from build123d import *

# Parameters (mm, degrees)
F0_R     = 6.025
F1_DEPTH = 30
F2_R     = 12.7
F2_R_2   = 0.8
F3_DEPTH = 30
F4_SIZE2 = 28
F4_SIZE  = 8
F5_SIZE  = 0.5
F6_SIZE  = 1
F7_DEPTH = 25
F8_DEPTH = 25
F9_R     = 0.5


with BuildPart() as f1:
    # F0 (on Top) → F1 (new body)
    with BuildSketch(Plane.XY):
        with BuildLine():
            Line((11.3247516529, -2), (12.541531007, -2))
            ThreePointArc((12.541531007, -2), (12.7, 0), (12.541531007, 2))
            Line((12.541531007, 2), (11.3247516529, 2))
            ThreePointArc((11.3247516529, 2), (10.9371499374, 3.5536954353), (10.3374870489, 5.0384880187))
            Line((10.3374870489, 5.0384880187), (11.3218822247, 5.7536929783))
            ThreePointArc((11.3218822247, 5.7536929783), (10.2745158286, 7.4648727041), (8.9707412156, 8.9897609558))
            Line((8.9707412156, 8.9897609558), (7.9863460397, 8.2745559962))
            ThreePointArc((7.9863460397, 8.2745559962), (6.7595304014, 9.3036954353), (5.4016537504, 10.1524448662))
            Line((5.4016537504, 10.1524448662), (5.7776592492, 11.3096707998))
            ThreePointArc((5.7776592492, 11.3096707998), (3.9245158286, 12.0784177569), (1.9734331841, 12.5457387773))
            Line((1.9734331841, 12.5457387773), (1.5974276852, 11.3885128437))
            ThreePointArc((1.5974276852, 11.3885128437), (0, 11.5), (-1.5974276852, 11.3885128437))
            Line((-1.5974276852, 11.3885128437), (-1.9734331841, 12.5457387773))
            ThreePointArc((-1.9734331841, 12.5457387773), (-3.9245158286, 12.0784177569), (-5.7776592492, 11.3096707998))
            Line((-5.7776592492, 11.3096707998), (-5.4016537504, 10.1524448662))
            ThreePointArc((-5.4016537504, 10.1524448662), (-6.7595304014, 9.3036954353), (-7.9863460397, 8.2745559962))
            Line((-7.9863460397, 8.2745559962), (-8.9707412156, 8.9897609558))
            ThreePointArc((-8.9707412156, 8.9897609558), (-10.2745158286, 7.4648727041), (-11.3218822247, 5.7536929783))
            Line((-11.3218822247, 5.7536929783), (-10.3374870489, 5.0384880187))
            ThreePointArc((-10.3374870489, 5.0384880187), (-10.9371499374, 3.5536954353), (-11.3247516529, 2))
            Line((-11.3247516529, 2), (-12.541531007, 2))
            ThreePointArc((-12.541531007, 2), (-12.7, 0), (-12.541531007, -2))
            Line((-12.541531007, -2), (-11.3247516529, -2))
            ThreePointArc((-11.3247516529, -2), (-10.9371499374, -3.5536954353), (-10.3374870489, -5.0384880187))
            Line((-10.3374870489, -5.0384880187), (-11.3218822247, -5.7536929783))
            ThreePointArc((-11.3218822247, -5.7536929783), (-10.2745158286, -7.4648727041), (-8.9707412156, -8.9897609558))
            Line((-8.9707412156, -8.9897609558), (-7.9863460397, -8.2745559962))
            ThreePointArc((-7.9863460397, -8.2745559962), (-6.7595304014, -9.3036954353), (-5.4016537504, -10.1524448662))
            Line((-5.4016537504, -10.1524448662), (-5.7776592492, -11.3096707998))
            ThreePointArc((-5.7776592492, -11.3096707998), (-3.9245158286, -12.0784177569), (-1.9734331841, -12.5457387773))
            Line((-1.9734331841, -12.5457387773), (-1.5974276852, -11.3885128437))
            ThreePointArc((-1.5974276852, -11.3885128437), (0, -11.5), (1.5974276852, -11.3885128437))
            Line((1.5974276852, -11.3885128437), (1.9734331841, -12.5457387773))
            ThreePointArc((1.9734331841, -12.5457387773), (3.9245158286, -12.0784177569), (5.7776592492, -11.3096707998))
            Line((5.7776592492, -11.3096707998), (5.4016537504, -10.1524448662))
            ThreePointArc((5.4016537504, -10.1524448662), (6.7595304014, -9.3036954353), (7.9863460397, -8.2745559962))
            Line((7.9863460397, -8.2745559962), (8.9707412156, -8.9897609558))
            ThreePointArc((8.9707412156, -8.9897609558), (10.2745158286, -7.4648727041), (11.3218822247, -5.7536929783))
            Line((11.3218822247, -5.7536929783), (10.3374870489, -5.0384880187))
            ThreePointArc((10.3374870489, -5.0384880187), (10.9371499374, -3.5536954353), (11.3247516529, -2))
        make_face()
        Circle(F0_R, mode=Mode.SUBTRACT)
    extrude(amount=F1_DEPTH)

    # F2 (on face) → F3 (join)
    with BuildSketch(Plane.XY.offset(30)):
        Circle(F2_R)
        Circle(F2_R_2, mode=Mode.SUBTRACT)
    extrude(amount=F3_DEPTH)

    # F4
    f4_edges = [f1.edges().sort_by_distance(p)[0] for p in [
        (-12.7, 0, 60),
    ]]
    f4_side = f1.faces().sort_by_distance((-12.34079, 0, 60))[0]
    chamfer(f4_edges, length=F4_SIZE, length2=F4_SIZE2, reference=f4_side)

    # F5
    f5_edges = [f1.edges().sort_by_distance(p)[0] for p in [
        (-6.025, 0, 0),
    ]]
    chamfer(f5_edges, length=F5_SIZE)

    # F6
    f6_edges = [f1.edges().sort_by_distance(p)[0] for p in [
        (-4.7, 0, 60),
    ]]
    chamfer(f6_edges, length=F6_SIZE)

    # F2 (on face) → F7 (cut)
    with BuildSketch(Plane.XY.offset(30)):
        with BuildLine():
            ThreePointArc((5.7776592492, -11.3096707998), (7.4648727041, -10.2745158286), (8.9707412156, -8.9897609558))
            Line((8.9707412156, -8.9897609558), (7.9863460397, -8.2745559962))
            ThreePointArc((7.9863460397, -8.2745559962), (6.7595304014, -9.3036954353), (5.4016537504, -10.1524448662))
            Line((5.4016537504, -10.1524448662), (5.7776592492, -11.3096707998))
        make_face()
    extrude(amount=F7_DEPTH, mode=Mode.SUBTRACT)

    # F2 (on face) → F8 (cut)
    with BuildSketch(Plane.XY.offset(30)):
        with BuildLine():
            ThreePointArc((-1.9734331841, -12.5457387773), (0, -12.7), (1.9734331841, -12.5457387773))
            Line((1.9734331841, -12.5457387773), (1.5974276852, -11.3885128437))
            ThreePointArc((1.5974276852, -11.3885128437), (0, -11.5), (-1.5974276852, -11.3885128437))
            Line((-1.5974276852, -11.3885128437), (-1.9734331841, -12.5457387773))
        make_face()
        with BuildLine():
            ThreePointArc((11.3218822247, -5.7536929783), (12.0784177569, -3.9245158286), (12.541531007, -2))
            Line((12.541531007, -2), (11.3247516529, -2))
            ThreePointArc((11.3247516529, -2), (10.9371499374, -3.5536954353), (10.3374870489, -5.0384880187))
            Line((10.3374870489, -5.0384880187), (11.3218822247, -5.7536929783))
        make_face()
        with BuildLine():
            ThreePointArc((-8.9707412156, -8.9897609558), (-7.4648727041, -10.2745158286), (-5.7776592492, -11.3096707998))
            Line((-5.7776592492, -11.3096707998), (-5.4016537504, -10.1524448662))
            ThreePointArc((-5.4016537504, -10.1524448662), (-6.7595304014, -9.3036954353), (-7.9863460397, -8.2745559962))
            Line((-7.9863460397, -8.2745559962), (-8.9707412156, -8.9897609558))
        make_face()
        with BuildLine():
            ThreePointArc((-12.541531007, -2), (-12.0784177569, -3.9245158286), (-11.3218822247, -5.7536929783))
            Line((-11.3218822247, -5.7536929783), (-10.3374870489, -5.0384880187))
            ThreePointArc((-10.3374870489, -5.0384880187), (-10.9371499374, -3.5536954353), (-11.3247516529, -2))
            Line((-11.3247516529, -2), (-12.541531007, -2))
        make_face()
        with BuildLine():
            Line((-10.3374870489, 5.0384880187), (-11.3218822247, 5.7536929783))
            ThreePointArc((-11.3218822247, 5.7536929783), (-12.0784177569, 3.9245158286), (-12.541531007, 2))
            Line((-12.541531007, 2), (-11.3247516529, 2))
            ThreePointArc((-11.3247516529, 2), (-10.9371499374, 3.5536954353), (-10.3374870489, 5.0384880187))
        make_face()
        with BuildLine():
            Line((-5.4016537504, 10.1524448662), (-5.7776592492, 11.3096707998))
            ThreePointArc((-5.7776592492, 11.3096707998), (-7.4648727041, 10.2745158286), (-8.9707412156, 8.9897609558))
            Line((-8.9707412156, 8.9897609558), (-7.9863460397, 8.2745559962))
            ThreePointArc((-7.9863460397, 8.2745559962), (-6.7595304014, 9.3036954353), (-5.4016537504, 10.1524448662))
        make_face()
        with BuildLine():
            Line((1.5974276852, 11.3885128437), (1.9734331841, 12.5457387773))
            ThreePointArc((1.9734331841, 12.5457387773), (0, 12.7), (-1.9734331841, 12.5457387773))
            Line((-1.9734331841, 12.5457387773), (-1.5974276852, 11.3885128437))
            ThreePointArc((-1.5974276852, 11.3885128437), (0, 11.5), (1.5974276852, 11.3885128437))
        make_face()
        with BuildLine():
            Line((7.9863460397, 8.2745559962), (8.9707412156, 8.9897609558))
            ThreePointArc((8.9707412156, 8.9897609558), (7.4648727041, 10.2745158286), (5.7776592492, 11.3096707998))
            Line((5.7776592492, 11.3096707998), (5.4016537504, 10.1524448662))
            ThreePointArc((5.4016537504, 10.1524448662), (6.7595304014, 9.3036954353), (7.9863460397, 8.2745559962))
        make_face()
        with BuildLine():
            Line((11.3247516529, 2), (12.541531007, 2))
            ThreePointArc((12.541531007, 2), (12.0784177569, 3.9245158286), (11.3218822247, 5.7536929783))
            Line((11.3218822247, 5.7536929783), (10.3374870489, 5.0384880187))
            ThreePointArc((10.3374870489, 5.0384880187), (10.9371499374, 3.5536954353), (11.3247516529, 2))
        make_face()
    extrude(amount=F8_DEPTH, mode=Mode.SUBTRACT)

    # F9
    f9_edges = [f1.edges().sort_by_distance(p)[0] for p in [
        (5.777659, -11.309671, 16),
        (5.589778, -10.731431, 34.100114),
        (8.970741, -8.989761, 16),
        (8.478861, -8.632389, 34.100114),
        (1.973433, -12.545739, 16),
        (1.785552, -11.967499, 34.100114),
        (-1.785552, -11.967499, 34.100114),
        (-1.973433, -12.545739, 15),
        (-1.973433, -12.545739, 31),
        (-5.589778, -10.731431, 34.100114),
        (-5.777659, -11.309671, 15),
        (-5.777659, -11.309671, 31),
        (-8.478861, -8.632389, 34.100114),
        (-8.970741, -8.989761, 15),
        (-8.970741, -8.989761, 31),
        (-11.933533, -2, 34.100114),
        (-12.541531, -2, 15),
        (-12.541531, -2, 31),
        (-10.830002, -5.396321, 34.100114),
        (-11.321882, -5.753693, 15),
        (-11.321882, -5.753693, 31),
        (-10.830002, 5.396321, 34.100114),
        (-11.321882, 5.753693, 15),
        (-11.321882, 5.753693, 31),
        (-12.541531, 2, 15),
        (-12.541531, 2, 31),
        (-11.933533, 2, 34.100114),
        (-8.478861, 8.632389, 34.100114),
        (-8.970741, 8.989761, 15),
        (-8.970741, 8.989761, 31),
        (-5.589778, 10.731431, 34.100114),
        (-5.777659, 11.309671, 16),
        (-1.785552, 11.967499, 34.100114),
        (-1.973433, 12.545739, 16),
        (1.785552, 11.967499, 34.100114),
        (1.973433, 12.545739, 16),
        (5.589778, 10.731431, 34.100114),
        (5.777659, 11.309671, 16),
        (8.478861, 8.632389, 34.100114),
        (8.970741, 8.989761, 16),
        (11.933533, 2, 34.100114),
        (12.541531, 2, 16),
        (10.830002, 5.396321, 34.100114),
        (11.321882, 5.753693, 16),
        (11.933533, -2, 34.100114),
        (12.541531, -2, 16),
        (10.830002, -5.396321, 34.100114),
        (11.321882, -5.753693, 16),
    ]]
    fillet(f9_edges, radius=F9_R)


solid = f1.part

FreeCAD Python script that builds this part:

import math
import FreeCAD as App
import Part
import Sketcher
from FreeCAD import Vector
Q = App.Units.Quantity


def edges_at(feature, points):
    """Names of the edges that pass closest to the given points."""
    edges = feature.Shape.Edges
    near = lambda p: min(range(len(edges)), key=lambda i: edges[i].distToShape(Part.Vertex(*p))[0])
    return sorted({f"Edge{near(p) + 1}" for p in points})

doc = App.newDocument("Part")
body = doc.addObject("PartDesign::Body", "Body")

# Sketch on XY plane
sketch1 = body.newObject("Sketcher::SketchObject", "Sketch")
sketch1.AttachmentSupport = (doc.getObject("XY_Plane"), [""])
sketch1.MapMode = "FlatFace"
sketch1.addGeometry([
    Part.LineSegment(Vector(11.324752, -2, 0), Vector(12.541531, -2, 0)),  # 0
    Part.ArcOfCircle(Part.Circle(Vector(0, 0, 0), Vector(0, 0, 1), 12.7), math.radians(-9.060675), math.radians(9.060675)),  # 1
    Part.LineSegment(Vector(12.541531, 2, 0), Vector(11.324752, 2, 0)),  # 2
    Part.ArcOfCircle(Part.Circle(Vector(0, 0, 0), Vector(0, 0, 1), 11.5), math.radians(10.01541), math.radians(25.98459)),  # 3
    Part.LineSegment(Vector(10.337487, 5.038488, 0), Vector(11.321882, 5.753693, 0)),  # 4
    Part.ArcOfCircle(Part.Circle(Vector(0, 0, 0), Vector(0, 0, 1), 12.7), math.radians(26.939325), math.radians(45.060675)),  # 5
    Part.LineSegment(Vector(8.970741, 8.989761, 0), Vector(7.986346, 8.274556, 0)),  # 6
    Part.ArcOfCircle(Part.Circle(Vector(0, 0, 0), Vector(0, 0, 1), 11.5), math.radians(46.01541), math.radians(61.98459)),  # 7
    Part.LineSegment(Vector(5.401654, 10.152445, 0), Vector(5.777659, 11.309671, 0)),  # 8
    Part.ArcOfCircle(Part.Circle(Vector(0, 0, 0), Vector(0, 0, 1), 12.7), math.radians(62.939325), math.radians(81.060675)),  # 9
    Part.LineSegment(Vector(1.973433, 12.545739, 0), Vector(1.597428, 11.388513, 0)),  # 10
    Part.ArcOfCircle(Part.Circle(Vector(0, 0, 0), Vector(0, 0, 1), 11.5), math.radians(82.01541), math.radians(97.98459)),  # 11
    Part.LineSegment(Vector(-1.597428, 11.388513, 0), Vector(-1.973433, 12.545739, 0)),  # 12
    Part.ArcOfCircle(Part.Circle(Vector(0, 0, 0), Vector(0, 0, 1), 12.7), math.radians(98.939325), math.radians(117.060675)),  # 13
    Part.LineSegment(Vector(-5.777659, 11.309671, 0), Vector(-5.401654, 10.152445, 0)),  # 14
    Part.ArcOfCircle(Part.Circle(Vector(0, 0, 0), Vector(0, 0, 1), 11.5), math.radians(118.01541), math.radians(133.98459)),  # 15
    Part.LineSegment(Vector(-7.986346, 8.274556, 0), Vector(-8.970741, 8.989761, 0)),  # 16
    Part.ArcOfCircle(Part.Circle(Vector(0, 0, 0), Vector(0, 0, 1), 12.7), math.radians(134.939325), math.radians(153.060675)),  # 17
    Part.LineSegment(Vector(-11.321882, 5.753693, 0), Vector(-10.337487, 5.038488, 0)),  # 18
    Part.ArcOfCircle(Part.Circle(Vector(0, 0, 0), Vector(0, 0, 1), 11.5), math.radians(154.01541), math.radians(169.98459)),  # 19
    Part.LineSegment(Vector(-11.324752, 2, 0), Vector(-12.541531, 2, 0)),  # 20
    Part.ArcOfCircle(Part.Circle(Vector(0, 0, 0), Vector(0, 0, 1), 12.7), math.radians(170.939325), math.radians(189.060675)),  # 21
    Part.LineSegment(Vector(-12.541531, -2, 0), Vector(-11.324752, -2, 0)),  # 22
    Part.ArcOfCircle(Part.Circle(Vector(0, 0, 0), Vector(0, 0, 1), 11.5), math.radians(-169.98459), math.radians(-154.01541)),  # 23
    Part.LineSegment(Vector(-10.337487, -5.038488, 0), Vector(-11.321882, -5.753693, 0)),  # 24
    Part.ArcOfCircle(Part.Circle(Vector(0, 0, 0), Vector(0, 0, 1), 12.7), math.radians(-153.060675), math.radians(-134.939325)),  # 25
    Part.LineSegment(Vector(-8.970741, -8.989761, 0), Vector(-7.986346, -8.274556, 0)),  # 26
    Part.ArcOfCircle(Part.Circle(Vector(0, 0, 0), Vector(0, 0, 1), 11.5), math.radians(-133.98459), math.radians(-118.01541)),  # 27
    Part.LineSegment(Vector(-5.401654, -10.152445, 0), Vector(-5.777659, -11.309671, 0)),  # 28
    Part.ArcOfCircle(Part.Circle(Vector(0, 0, 0), Vector(0, 0, 1), 12.7), math.radians(-117.060675), math.radians(-98.939325)),  # 29
    Part.LineSegment(Vector(-1.973433, -12.545739, 0), Vector(-1.597428, -11.388513, 0)),  # 30
    Part.ArcOfCircle(Part.Circle(Vector(0, 0, 0), Vector(0, 0, 1), 11.5), math.radians(-97.98459), math.radians(-82.01541)),  # 31
    Part.LineSegment(Vector(1.597428, -11.388513, 0), Vector(1.973433, -12.545739, 0)),  # 32
    Part.ArcOfCircle(Part.Circle(Vector(0, 0, 0), Vector(0, 0, 1), 12.7), math.radians(-81.060675), math.radians(-62.939325)),  # 33
    Part.LineSegment(Vector(5.777659, -11.309671, 0), Vector(5.401654, -10.152445, 0)),  # 34
    Part.ArcOfCircle(Part.Circle(Vector(0, 0, 0), Vector(0, 0, 1), 11.5), math.radians(-61.98459), math.radians(-46.01541)),  # 35
    Part.LineSegment(Vector(7.986346, -8.274556, 0), Vector(8.970741, -8.989761, 0)),  # 36
    Part.ArcOfCircle(Part.Circle(Vector(0, 0, 0), Vector(0, 0, 1), 12.7), math.radians(-45.060675), math.radians(-26.939325)),  # 37
    Part.LineSegment(Vector(11.321882, -5.753693, 0), Vector(10.337487, -5.038488, 0)),  # 38
    Part.ArcOfCircle(Part.Circle(Vector(0, 0, 0), Vector(0, 0, 1), 11.5), math.radians(-25.98459), math.radians(-10.01541)),  # 39
    Part.Circle(Vector(0, 0, 0), Vector(0, 0, 1), 6.025),  # 40
], False)
sketch1.addConstraint([
    Sketcher.Constraint("Coincident", 0, 2, 1, 1),
    Sketcher.Constraint("Coincident", 1, 2, 2, 1),
    Sketcher.Constraint("Coincident", 2, 2, 3, 1),
    Sketcher.Constraint("Coincident", 3, 2, 4, 1),
    Sketcher.Constraint("Coincident", 4, 2, 5, 1),
    Sketcher.Constraint("Coincident", 5, 2, 6, 1),
    Sketcher.Constraint("Coincident", 6, 2, 7, 1),
    Sketcher.Constraint("Coincident", 7, 2, 8, 1),
    Sketcher.Constraint("Coincident", 8, 2, 9, 1),
    Sketcher.Constraint("Coincident", 9, 2, 10, 1),
    Sketcher.Constraint("Coincident", 10, 2, 11, 1),
    Sketcher.Constraint("Coincident", 11, 2, 12, 1),
    Sketcher.Constraint("Coincident", 12, 2, 13, 1),
    Sketcher.Constraint("Coincident", 13, 2, 14, 1),
    Sketcher.Constraint("Coincident", 14, 2, 15, 1),
    Sketcher.Constraint("Coincident", 15, 2, 16, 1),
    Sketcher.Constraint("Coincident", 16, 2, 17, 1),
    Sketcher.Constraint("Coincident", 17, 2, 18, 1),
    Sketcher.Constraint("Coincident", 18, 2, 19, 1),
    Sketcher.Constraint("Coincident", 19, 2, 20, 1),
    Sketcher.Constraint("Coincident", 20, 2, 21, 1),
    Sketcher.Constraint("Coincident", 21, 2, 22, 1),
    Sketcher.Constraint("Coincident", 22, 2, 23, 1),
    Sketcher.Constraint("Coincident", 23, 2, 24, 1),
    Sketcher.Constraint("Coincident", 24, 2, 25, 1),
    Sketcher.Constraint("Coincident", 25, 2, 26, 1),
    Sketcher.Constraint("Coincident", 26, 2, 27, 1),
    Sketcher.Constraint("Coincident", 27, 2, 28, 1),
    Sketcher.Constraint("Coincident", 28, 2, 29, 1),
    Sketcher.Constraint("Coincident", 29, 2, 30, 1),
    Sketcher.Constraint("Coincident", 30, 2, 31, 1),
    Sketcher.Constraint("Coincident", 31, 2, 32, 1),
    Sketcher.Constraint("Coincident", 32, 2, 33, 1),
    Sketcher.Constraint("Coincident", 33, 2, 34, 1),
    Sketcher.Constraint("Coincident", 34, 2, 35, 1),
    Sketcher.Constraint("Coincident", 35, 2, 36, 1),
    Sketcher.Constraint("Coincident", 36, 2, 37, 1),
    Sketcher.Constraint("Coincident", 37, 2, 38, 1),
    Sketcher.Constraint("Coincident", 38, 2, 39, 1),
    Sketcher.Constraint("Coincident", 39, 2, 0, 1),
    Sketcher.Constraint("Horizontal", 0),
    Sketcher.Constraint("Horizontal", 2),
    Sketcher.Constraint("Horizontal", 20),
    Sketcher.Constraint("Horizontal", 22),
    Sketcher.Constraint("Coincident", 1, 3, -1, 1),
    Sketcher.Constraint("Coincident", 3, 3, -1, 1),
    Sketcher.Constraint("Coincident", 5, 3, -1, 1),
    Sketcher.Constraint("Coincident", 7, 3, -1, 1),
    Sketcher.Constraint("Coincident", 9, 3, -1, 1),
    Sketcher.Constraint("Coincident", 11, 3, -1, 1),
    Sketcher.Constraint("Coincident", 13, 3, -1, 1),
    Sketcher.Constraint("Coincident", 15, 3, -1, 1),
    Sketcher.Constraint("Coincident", 17, 3, -1, 1),
    Sketcher.Constraint("Coincident", 19, 3, -1, 1),
    Sketcher.Constraint("Coincident", 21, 3, -1, 1),
    Sketcher.Constraint("Coincident", 23, 3, -1, 1),
    Sketcher.Constraint("Coincident", 25, 3, -1, 1),
    Sketcher.Constraint("Coincident", 27, 3, -1, 1),
    Sketcher.Constraint("Coincident", 29, 3, -1, 1),
    Sketcher.Constraint("Coincident", 31, 3, -1, 1),
    Sketcher.Constraint("Coincident", 33, 3, -1, 1),
    Sketcher.Constraint("Coincident", 35, 3, -1, 1),
    Sketcher.Constraint("Coincident", 37, 3, -1, 1),
    Sketcher.Constraint("Coincident", 39, 3, -1, 1),
    Sketcher.Constraint("Coincident", 40, 3, -1, 1),
    Sketcher.Constraint("Radius", 1, Q("12.7 mm")),
    Sketcher.Constraint("Radius", 3, Q("11.5 mm")),
    Sketcher.Constraint("Radius", 5, Q("12.7 mm")),
    Sketcher.Constraint("Radius", 7, Q("11.5 mm")),
    Sketcher.Constraint("Radius", 9, Q("12.7 mm")),
    Sketcher.Constraint("Radius", 11, Q("11.5 mm")),
    Sketcher.Constraint("Radius", 13, Q("12.7 mm")),
    Sketcher.Constraint("Radius", 15, Q("11.5 mm")),
    Sketcher.Constraint("Radius", 17, Q("12.7 mm")),
    Sketcher.Constraint("Radius", 19, Q("11.5 mm")),
    Sketcher.Constraint("Radius", 21, Q("12.7 mm")),
    Sketcher.Constraint("Radius", 23, Q("11.5 mm")),
    Sketcher.Constraint("Radius", 25, Q("12.7 mm")),
    Sketcher.Constraint("Radius", 27, Q("11.5 mm")),
    Sketcher.Constraint("Radius", 29, Q("12.7 mm")),
    Sketcher.Constraint("Radius", 31, Q("11.5 mm")),
    Sketcher.Constraint("Radius", 33, Q("12.7 mm")),
    Sketcher.Constraint("Radius", 35, Q("11.5 mm")),
    Sketcher.Constraint("Radius", 37, Q("12.7 mm")),
    Sketcher.Constraint("Radius", 39, Q("11.5 mm")),
    Sketcher.Constraint("Diameter", 40, Q("12.05 mm")),
    Sketcher.Constraint("DistanceY", 0, 2, -1, 1, Q("2 mm")),
    Sketcher.Constraint("DistanceY", -1, 1, 1, 2, Q("2 mm")),
    Sketcher.Constraint("DistanceY", -1, 1, 19, 2, Q("2 mm")),
    Sketcher.Constraint("DistanceY", 21, 2, -1, 1, Q("2 mm")),
    Sketcher.Constraint("Distance", 4, Q("1.216779 mm")),
    Sketcher.Constraint("Distance", 6, Q("1.216779 mm")),
    Sketcher.Constraint("Distance", 8, Q("1.216779 mm")),
    Sketcher.Constraint("Distance", 10, Q("1.216779 mm")),
    Sketcher.Constraint("Distance", 12, Q("1.216779 mm")),
    Sketcher.Constraint("Distance", 14, Q("1.216779 mm")),
    Sketcher.Constraint("Distance", 16, Q("1.216779 mm")),
    Sketcher.Constraint("Distance", 18, Q("1.216779 mm")),
    Sketcher.Constraint("Distance", 24, Q("1.216779 mm")),
    Sketcher.Constraint("Distance", 26, Q("1.216779 mm")),
    Sketcher.Constraint("Distance", 28, Q("1.216779 mm")),
    Sketcher.Constraint("Distance", 30, Q("1.216779 mm")),
    Sketcher.Constraint("Distance", 32, Q("1.216779 mm")),
    Sketcher.Constraint("Distance", 34, Q("1.216779 mm")),
    Sketcher.Constraint("Distance", 36, Q("1.216779 mm")),
    Sketcher.Constraint("Distance", 38, Q("1.216779 mm")),
    Sketcher.Constraint("DistanceY", -1, 1, 3, 2, Q("5.038488 mm")),
    Sketcher.Constraint("DistanceX", -1, 1, 5, 2, Q("8.970741 mm")),
    Sketcher.Constraint("DistanceX", -1, 1, 8, 2, Q("5.777659 mm")),
    Sketcher.Constraint("DistanceY", -1, 1, 9, 2, Q("12.545739 mm")),
    Sketcher.Constraint("DistanceY", -1, 1, 12, 2, Q("12.545739 mm")),
    Sketcher.Constraint("DistanceX", 13, 2, -1, 1, Q("5.777659 mm")),
    Sketcher.Constraint("DistanceX", 16, 2, -1, 1, Q("8.970741 mm")),
    Sketcher.Constraint("DistanceY", -1, 1, 18, 2, Q("5.038488 mm")),
    Sketcher.Constraint("DistanceY", 23, 2, -1, 1, Q("5.038488 mm")),
    Sketcher.Constraint("DistanceX", 25, 2, -1, 1, Q("8.970741 mm")),
    Sketcher.Constraint("DistanceX", 28, 2, -1, 1, Q("5.777659 mm")),
    Sketcher.Constraint("DistanceY", 29, 2, -1, 1, Q("12.545739 mm")),
    Sketcher.Constraint("DistanceY", 32, 2, -1, 1, Q("12.545739 mm")),
    Sketcher.Constraint("DistanceX", -1, 1, 33, 2, Q("5.777659 mm")),
    Sketcher.Constraint("DistanceX", -1, 1, 36, 2, Q("8.970741 mm")),
    Sketcher.Constraint("DistanceY", 38, 2, -1, 1, Q("5.038488 mm")),
])
pad1 = body.newObject("PartDesign::Pad", "Pad")
pad1.Profile = sketch1
pad1.Length = 30

# Sketch on XY plane
sketch2 = body.newObject("Sketcher::SketchObject", "Sketch001")
sketch2.AttachmentSupport = (doc.getObject("XY_Plane"), [""])
sketch2.MapMode = "FlatFace"
sketch2.AttachmentOffset = App.Placement(Vector(0, 0, 30), App.Rotation())
sketch2.addGeometry([
    Part.Circle(Vector(0, 0, 0), Vector(0, 0, 1), 12.7),
    Part.Circle(Vector(0, 0, 0), Vector(0, 0, 1), 0.8),
], False)
sketch2.addConstraint([
    Sketcher.Constraint("Coincident", 0, 3, -1, 1),
    Sketcher.Constraint("Coincident", 1, 3, -1, 1),
    Sketcher.Constraint("Diameter", 0, Q("25.4 mm")),
    Sketcher.Constraint("Diameter", 1, Q("1.6 mm")),
])
pad2 = body.newObject("PartDesign::Pad", "Pad001")
pad2.Profile = sketch2
pad2.Length = 30
doc.recompute()

chamfer = body.newObject("PartDesign::Chamfer", "Chamfer")
chamfer.Base = (pad2, edges_at(pad2, [(-12.7, 0, 60)]))
chamfer.ChamferType = "Two distances"
chamfer.Size = 8
chamfer.Size2 = 28
doc.recompute()

chamfer2 = body.newObject("PartDesign::Chamfer", "Chamfer001")
chamfer2.Base = (chamfer, edges_at(chamfer, [(-6.025, 0, 0)]))
chamfer2.Size = 0.5
doc.recompute()

chamfer3 = body.newObject("PartDesign::Chamfer", "Chamfer002")
chamfer3.Base = (chamfer2, edges_at(chamfer2, [(-4.7, 0, 60)]))
chamfer3.Size = 1

# Sketch on XY plane
sketch3 = body.newObject("Sketcher::SketchObject", "Sketch002")
sketch3.AttachmentSupport = (doc.getObject("XY_Plane"), [""])
sketch3.MapMode = "FlatFace"
sketch3.AttachmentOffset = App.Placement(Vector(0, 0, 30), App.Rotation())
sketch3.addGeometry([
    Part.ArcOfCircle(Part.Circle(Vector(0, 0, 0), Vector(0, 0, 1), 12.7), math.radians(-62.939325), math.radians(-45.060675)),
    Part.LineSegment(Vector(8.970741, -8.989761, 0), Vector(7.986346, -8.274556, 0)),
    Part.ArcOfCircle(Part.Circle(Vector(0, 0, 0), Vector(0, 0, 1), 11.5), math.radians(-61.98459), math.radians(-46.01541)),
    Part.LineSegment(Vector(5.401654, -10.152445, 0), Vector(5.777659, -11.309671, 0)),
], False)
sketch3.addConstraint([
    Sketcher.Constraint("Coincident", 0, 2, 1, 1),
    Sketcher.Constraint("Coincident", 1, 2, 2, 2),
    Sketcher.Constraint("Coincident", 2, 1, 3, 1),
    Sketcher.Constraint("Coincident", 3, 2, 0, 1),
    Sketcher.Constraint("Coincident", 0, 3, -1, 1),
    Sketcher.Constraint("Coincident", 2, 3, -1, 1),
    Sketcher.Constraint("Radius", 0, Q("12.7 mm")),
    Sketcher.Constraint("Radius", 2, Q("11.5 mm")),
    Sketcher.Constraint("Distance", 1, Q("1.216779 mm")),
    Sketcher.Constraint("Distance", 3, Q("1.216779 mm")),
    Sketcher.Constraint("DistanceX", -1, 1, 0, 2, Q("8.970741 mm")),
    Sketcher.Constraint("DistanceX", -1, 1, 3, 2, Q("5.777659 mm")),
])
pocket1 = body.newObject("PartDesign::Pocket", "Pocket")
pocket1.Profile = sketch3
pocket1.Length = 25
pocket1.Reversed = True

# Sketch on XY plane
sketch4 = body.newObject("Sketcher::SketchObject", "Sketch003")
sketch4.AttachmentSupport = (doc.getObject("XY_Plane"), [""])
sketch4.MapMode = "FlatFace"
sketch4.AttachmentOffset = App.Placement(Vector(0, 0, 30), App.Rotation())
sketch4.addGeometry([
    Part.ArcOfCircle(Part.Circle(Vector(0, 0, 0), Vector(0, 0, 1), 12.7), math.radians(-98.939325), math.radians(-81.060675)),  # 0
    Part.LineSegment(Vector(1.973433, -12.545739, 0), Vector(1.597428, -11.388513, 0)),  # 1
    Part.ArcOfCircle(Part.Circle(Vector(0, 0, 0), Vector(0, 0, 1), 11.5), math.radians(-97.98459), math.radians(-82.01541)),  # 2
    Part.LineSegment(Vector(-1.597428, -11.388513, 0), Vector(-1.973433, -12.545739, 0)),  # 3
    Part.ArcOfCircle(Part.Circle(Vector(0, 0, 0), Vector(0, 0, 1), 12.7), math.radians(-26.939325), math.radians(-9.060675)),  # 4
    Part.LineSegment(Vector(12.541531, -2, 0), Vector(11.324752, -2, 0)),  # 5
    Part.ArcOfCircle(Part.Circle(Vector(0, 0, 0), Vector(0, 0, 1), 11.5), math.radians(-25.98459), math.radians(-10.01541)),  # 6
    Part.LineSegment(Vector(10.337487, -5.038488, 0), Vector(11.321882, -5.753693, 0)),  # 7
    Part.ArcOfCircle(Part.Circle(Vector(0, 0, 0), Vector(0, 0, 1), 12.7), math.radians(-134.939325), math.radians(-117.060675)),  # 8
    Part.LineSegment(Vector(-5.777659, -11.309671, 0), Vector(-5.401654, -10.152445, 0)),  # 9
    Part.ArcOfCircle(Part.Circle(Vector(0, 0, 0), Vector(0, 0, 1), 11.5), math.radians(-133.98459), math.radians(-118.01541)),  # 10
    Part.LineSegment(Vector(-7.986346, -8.274556, 0), Vector(-8.970741, -8.989761, 0)),  # 11
    Part.ArcOfCircle(Part.Circle(Vector(0, 0, 0), Vector(0, 0, 1), 12.7), math.radians(-170.939325), math.radians(-153.060675)),  # 12
    Part.LineSegment(Vector(-11.321882, -5.753693, 0), Vector(-10.337487, -5.038488, 0)),  # 13
    Part.ArcOfCircle(Part.Circle(Vector(0, 0, 0), Vector(0, 0, 1), 11.5), math.radians(-169.98459), math.radians(-154.01541)),  # 14
    Part.LineSegment(Vector(-11.324752, -2, 0), Vector(-12.541531, -2, 0)),  # 15
    Part.LineSegment(Vector(-10.337487, 5.038488, 0), Vector(-11.321882, 5.753693, 0)),  # 16
    Part.ArcOfCircle(Part.Circle(Vector(0, 0, 0), Vector(0, 0, 1), 12.7), math.radians(153.060675), math.radians(170.939325)),  # 17
    Part.LineSegment(Vector(-12.541531, 2, 0), Vector(-11.324752, 2, 0)),  # 18
    Part.ArcOfCircle(Part.Circle(Vector(0, 0, 0), Vector(0, 0, 1), 11.5), math.radians(154.01541), math.radians(169.98459)),  # 19
    Part.LineSegment(Vector(-5.401654, 10.152445, 0), Vector(-5.777659, 11.309671, 0)),  # 20
    Part.ArcOfCircle(Part.Circle(Vector(0, 0, 0), Vector(0, 0, 1), 12.7), math.radians(117.060675), math.radians(134.939325)),  # 21
    Part.LineSegment(Vector(-8.970741, 8.989761, 0), Vector(-7.986346, 8.274556, 0)),  # 22
    Part.ArcOfCircle(Part.Circle(Vector(0, 0, 0), Vector(0, 0, 1), 11.5), math.radians(118.01541), math.radians(133.98459)),  # 23
    Part.LineSegment(Vector(1.597428, 11.388513, 0), Vector(1.973433, 12.545739, 0)),  # 24
    Part.ArcOfCircle(Part.Circle(Vector(0, 0, 0), Vector(0, 0, 1), 12.7), math.radians(81.060675), math.radians(98.939325)),  # 25
    Part.LineSegment(Vector(-1.973433, 12.545739, 0), Vector(-1.597428, 11.388513, 0)),  # 26
    Part.ArcOfCircle(Part.Circle(Vector(0, 0, 0), Vector(0, 0, 1), 11.5), math.radians(82.01541), math.radians(97.98459)),  # 27
    Part.LineSegment(Vector(7.986346, 8.274556, 0), Vector(8.970741, 8.989761, 0)),  # 28
    Part.ArcOfCircle(Part.Circle(Vector(0, 0, 0), Vector(0, 0, 1), 12.7), math.radians(45.060675), math.radians(62.939325)),  # 29
    Part.LineSegment(Vector(5.777659, 11.309671, 0), Vector(5.401654, 10.152445, 0)),  # 30
    Part.ArcOfCircle(Part.Circle(Vector(0, 0, 0), Vector(0, 0, 1), 11.5), math.radians(46.01541), math.radians(61.98459)),  # 31
    Part.LineSegment(Vector(11.324752, 2, 0), Vector(12.541531, 2, 0)),  # 32
    Part.ArcOfCircle(Part.Circle(Vector(0, 0, 0), Vector(0, 0, 1), 12.7), math.radians(9.060675), math.radians(26.939325)),  # 33
    Part.LineSegment(Vector(11.321882, 5.753693, 0), Vector(10.337487, 5.038488, 0)),  # 34
    Part.ArcOfCircle(Part.Circle(Vector(0, 0, 0), Vector(0, 0, 1), 11.5), math.radians(10.01541), math.radians(25.98459)),  # 35
], False)
sketch4.addConstraint([
    Sketcher.Constraint("Coincident", 0, 2, 1, 1),
    Sketcher.Constraint("Coincident", 1, 2, 2, 2),
    Sketcher.Constraint("Coincident", 2, 1, 3, 1),
    Sketcher.Constraint("Coincident", 3, 2, 0, 1),
    Sketcher.Constraint("Coincident", 4, 2, 5, 1),
    Sketcher.Constraint("Coincident", 5, 2, 6, 2),
    Sketcher.Constraint("Coincident", 6, 1, 7, 1),
    Sketcher.Constraint("Coincident", 7, 2, 4, 1),
    Sketcher.Constraint("Coincident", 8, 2, 9, 1),
    Sketcher.Constraint("Coincident", 9, 2, 10, 2),
    Sketcher.Constraint("Coincident", 10, 1, 11, 1),
    Sketcher.Constraint("Coincident", 11, 2, 8, 1),
    Sketcher.Constraint("Coincident", 12, 2, 13, 1),
    Sketcher.Constraint("Coincident", 13, 2, 14, 2),
    Sketcher.Constraint("Coincident", 14, 1, 15, 1),
    Sketcher.Constraint("Coincident", 15, 2, 12, 1),
    Sketcher.Constraint("Coincident", 16, 2, 17, 1),
    Sketcher.Constraint("Coincident", 17, 2, 18, 1),
    Sketcher.Constraint("Coincident", 18, 2, 19, 2),
    Sketcher.Constraint("Coincident", 19, 1, 16, 1),
    Sketcher.Constraint("Coincident", 20, 2, 21, 1),
    Sketcher.Constraint("Coincident", 21, 2, 22, 1),
    Sketcher.Constraint("Coincident", 22, 2, 23, 2),
    Sketcher.Constraint("Coincident", 23, 1, 20, 1),
    Sketcher.Constraint("Coincident", 24, 2, 25, 1),
    Sketcher.Constraint("Coincident", 25, 2, 26, 1),
    Sketcher.Constraint("Coincident", 26, 2, 27, 2),
    Sketcher.Constraint("Coincident", 27, 1, 24, 1),
    Sketcher.Constraint("Coincident", 28, 2, 29, 1),
    Sketcher.Constraint("Coincident", 29, 2, 30, 1),
    Sketcher.Constraint("Coincident", 30, 2, 31, 2),
    Sketcher.Constraint("Coincident", 31, 1, 28, 1),
    Sketcher.Constraint("Coincident", 32, 2, 33, 1),
    Sketcher.Constraint("Coincident", 33, 2, 34, 1),
    Sketcher.Constraint("Coincident", 34, 2, 35, 2),
    Sketcher.Constraint("Coincident", 35, 1, 32, 1),
    Sketcher.Constraint("Horizontal", 5),
    Sketcher.Constraint("Horizontal", 15),
    Sketcher.Constraint("Horizontal", 18),
    Sketcher.Constraint("Horizontal", 32),
    Sketcher.Constraint("Coincident", 0, 3, -1, 1),
    Sketcher.Constraint("Coincident", 2, 3, -1, 1),
    Sketcher.Constraint("Coincident", 4, 3, -1, 1),
    Sketcher.Constraint("Coincident", 6, 3, -1, 1),
    Sketcher.Constraint("Coincident", 8, 3, -1, 1),
    Sketcher.Constraint("Coincident", 10, 3, -1, 1),
    Sketcher.Constraint("Coincident", 12, 3, -1, 1),
    Sketcher.Constraint("Coincident", 14, 3, -1, 1),
    Sketcher.Constraint("Coincident", 17, 3, -1, 1),
    Sketcher.Constraint("Coincident", 19, 3, -1, 1),
    Sketcher.Constraint("Coincident", 21, 3, -1, 1),
    Sketcher.Constraint("Coincident", 23, 3, -1, 1),
    Sketcher.Constraint("Coincident", 25, 3, -1, 1),
    Sketcher.Constraint("Coincident", 27, 3, -1, 1),
    Sketcher.Constraint("Coincident", 29, 3, -1, 1),
    Sketcher.Constraint("Coincident", 31, 3, -1, 1),
    Sketcher.Constraint("Coincident", 33, 3, -1, 1),
    Sketcher.Constraint("Coincident", 35, 3, -1, 1),
    Sketcher.Constraint("Radius", 0, Q("12.7 mm")),
    Sketcher.Constraint("Radius", 2, Q("11.5 mm")),
    Sketcher.Constraint("Radius", 4, Q("12.7 mm")),
    Sketcher.Constraint("Radius", 6, Q("11.5 mm")),
    Sketcher.Constraint("Radius", 8, Q("12.7 mm")),
    Sketcher.Constraint("Radius", 10, Q("11.5 mm")),
    Sketcher.Constraint("Radius", 12, Q("12.7 mm")),
    Sketcher.Constraint("Radius", 14, Q("11.5 mm")),
    Sketcher.Constraint("Radius", 17, Q("12.7 mm")),
    Sketcher.Constraint("Radius", 19, Q("11.5 mm")),
    Sketcher.Constraint("Radius", 21, Q("12.7 mm")),
    Sketcher.Constraint("Radius", 23, Q("11.5 mm")),
    Sketcher.Constraint("Radius", 25, Q("12.7 mm")),
    Sketcher.Constraint("Radius", 27, Q("11.5 mm")),
    Sketcher.Constraint("Radius", 29, Q("12.7 mm")),
    Sketcher.Constraint("Radius", 31, Q("11.5 mm")),
    Sketcher.Constraint("Radius", 33, Q("12.7 mm")),
    Sketcher.Constraint("Radius", 35, Q("11.5 mm")),
    Sketcher.Constraint("DistanceY", 4, 2, -1, 1, Q("2 mm")),
    Sketcher.Constraint("DistanceY", 14, 1, -1, 1, Q("2 mm")),
    Sketcher.Constraint("DistanceY", -1, 1, 17, 2, Q("2 mm")),
    Sketcher.Constraint("DistanceY", -1, 1, 32, 2, Q("2 mm")),
    Sketcher.Constraint("Distance", 1, Q("1.216779 mm")),
    Sketcher.Constraint("Distance", 3, Q("1.216779 mm")),
    Sketcher.Constraint("Distance", 7, Q("1.216779 mm")),
    Sketcher.Constraint("Distance", 9, Q("1.216779 mm")),
    Sketcher.Constraint("Distance", 11, Q("1.216779 mm")),
    Sketcher.Constraint("Distance", 13, Q("1.216779 mm")),
    Sketcher.Constraint("Distance", 16, Q("1.216779 mm")),
    Sketcher.Constraint("Distance", 20, Q("1.216779 mm")),
    Sketcher.Constraint("Distance", 22, Q("1.216779 mm")),
    Sketcher.Constraint("Distance", 24, Q("1.216779 mm")),
    Sketcher.Constraint("Distance", 26, Q("1.216779 mm")),
    Sketcher.Constraint("Distance", 28, Q("1.216779 mm")),
    Sketcher.Constraint("Distance", 30, Q("1.216779 mm")),
    Sketcher.Constraint("Distance", 34, Q("1.216779 mm")),
    Sketcher.Constraint("DistanceY", 0, 2, -1, 1, Q("12.545739 mm")),
    Sketcher.Constraint("DistanceY", 3, 2, -1, 1, Q("12.545739 mm")),
    Sketcher.Constraint("DistanceY", 6, 1, -1, 1, Q("5.038488 mm")),
    Sketcher.Constraint("DistanceX", 8, 2, -1, 1, Q("5.777659 mm")),
    Sketcher.Constraint("DistanceX", 11, 2, -1, 1, Q("8.970741 mm")),
    Sketcher.Constraint("DistanceY", 13, 2, -1, 1, Q("5.038488 mm")),
    Sketcher.Constraint("DistanceY", -1, 1, 19, 1, Q("5.038488 mm")),
    Sketcher.Constraint("DistanceX", 20, 2, -1, 1, Q("5.777659 mm")),
    Sketcher.Constraint("DistanceX", 21, 2, -1, 1, Q("8.970741 mm")),
    Sketcher.Constraint("DistanceY", -1, 1, 24, 2, Q("12.545739 mm")),
    Sketcher.Constraint("DistanceY", -1, 1, 25, 2, Q("12.545739 mm")),
    Sketcher.Constraint("DistanceX", -1, 1, 28, 2, Q("8.970741 mm")),
    Sketcher.Constraint("DistanceX", -1, 1, 29, 2, Q("5.777659 mm")),
    Sketcher.Constraint("DistanceY", -1, 1, 34, 2, Q("5.038488 mm")),
])
pocket2 = body.newObject("PartDesign::Pocket", "Pocket001")
pocket2.Profile = sketch4
pocket2.Length = 25
pocket2.Reversed = True
doc.recompute()

fillet = body.newObject("PartDesign::Fillet", "Fillet")
fillet.Base = (pocket2, edges_at(pocket2, [
    (5.778, -11.31, 15),
    (5.59, -10.731, 34.1),
    (8.971, -8.99, 15),
    (8.479, -8.632, 34.1),
    (1.973, -12.546, 15),
    (1.786, -11.967, 34.1),
    (-1.786, -11.967, 34.1),
    (-1.973, -12.546, 15),
    (-1.973, -12.546, 31),
    (-5.59, -10.731, 34.1),
    (-5.778, -11.31, 15),
    (-5.778, -11.31, 31),
    (-8.479, -8.632, 34.1),
    (-8.971, -8.99, 15),
    (-8.971, -8.99, 31),
    (-11.934, -2, 34.1),
    (-12.542, -2, 15),
    (-12.542, -2, 31),
    (-10.83, -5.396, 34.1),
    (-11.322, -5.754, 15),
    (-11.322, -5.754, 31),
    (-10.83, 5.396, 34.1),
    (-11.322, 5.754, 15),
    (-11.322, 5.754, 31),
    (-12.542, 2, 15),
    (-12.542, 2, 31),
    (-11.934, 2, 34.1),
    (-8.479, 8.632, 34.1),
    (-8.971, 8.99, 15),
    (-8.971, 8.99, 31),
    (-5.59, 10.731, 34.1),
    (-5.778, 11.31, 15),
    (-1.786, 11.967, 34.1),
    (-1.973, 12.546, 15),
    (1.786, 11.967, 34.1),
    (1.973, 12.546, 15),
    (5.59, 10.731, 34.1),
    (5.778, 11.31, 15),
    (8.479, 8.632, 34.1),
    (8.971, 8.99, 15),
    (11.934, 2, 34.1),
    (12.542, 2, 16),
    (10.83, 5.396, 34.1),
    (11.322, 5.754, 15),
    (11.934, -2, 34.1),
    (12.542, -2, 16),
    (10.83, -5.396, 34.1),
    (11.322, -5.754, 15),
]))
fillet.Radius = 0.5

doc.recompute()
